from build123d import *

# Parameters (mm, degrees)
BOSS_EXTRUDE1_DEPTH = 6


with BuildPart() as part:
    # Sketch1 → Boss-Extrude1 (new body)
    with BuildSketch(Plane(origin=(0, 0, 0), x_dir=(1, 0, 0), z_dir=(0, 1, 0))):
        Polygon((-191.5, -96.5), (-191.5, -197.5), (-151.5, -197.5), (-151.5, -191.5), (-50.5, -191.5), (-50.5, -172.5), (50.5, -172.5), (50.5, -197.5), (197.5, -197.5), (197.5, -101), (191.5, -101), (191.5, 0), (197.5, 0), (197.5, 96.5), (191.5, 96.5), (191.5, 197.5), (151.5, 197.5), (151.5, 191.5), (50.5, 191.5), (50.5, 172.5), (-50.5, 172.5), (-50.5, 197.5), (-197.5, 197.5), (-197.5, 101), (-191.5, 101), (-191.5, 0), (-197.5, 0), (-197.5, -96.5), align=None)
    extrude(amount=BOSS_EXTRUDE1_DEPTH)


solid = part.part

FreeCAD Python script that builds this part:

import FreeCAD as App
import Part
import Sketcher
from FreeCAD import Vector


def add_polygon(sketch, points):
    """Adds a closed chain of lines whose ends are joined by coincident constraints."""
    first, n = sketch.GeometryCount, len(points)
    for a, b in zip(points, points[1:] + points[:1]):
        sketch.addGeometry(Part.LineSegment(App.Vector(*a, 0), App.Vector(*b, 0)), False)
    for i in range(n):
        sketch.addConstraint(Sketcher.Constraint("Coincident", first + i, 2, first + (i + 1) % n, 1))

doc = App.newDocument("Part")
body = doc.addObject("PartDesign::Body", "Body")

sketch1 = doc.addObject("Sketcher::SketchObject", "Sketch")
body.addObject(sketch1)
sketch1.AttachmentSupport = (doc.XZ_Plane, [""])
sketch1.MapMode = "FlatFace"
add_polygon(sketch1, [(-192, 96), (-192, 198), (-152, 198), (-152, 192), (-50, 192), (-50, 172), (50, 172), (50, 198), (198, 198), (198, 101), (192, 101), (192, 0), (198, 0), (198, -96), (192, -96), (192, -198), (152, -198), (152, -192), (50, -192), (50, -172), (-50, -172), (-50, -198), (-198, -198), (-198, -101), (-192, -101), (-192, 0), (-198, 0), (-198, 96)])
sketch1.addConstraint([
    Sketcher.Constraint("Vertical", 0),
    Sketcher.Constraint("Horizontal", 1),
    Sketcher.Constraint("Vertical", 2),
    Sketcher.Constraint("Horizontal", 3),
    Sketcher.Constraint("Vertical", 4),
    Sketcher.Constraint("Horizontal", 5),
    Sketcher.Constraint("Vertical", 6),
    Sketcher.Constraint("Horizontal", 7),
    Sketcher.Constraint("Vertical", 8),
    Sketcher.Constraint("Horizontal", 9),
    Sketcher.Constraint("Vertical", 10),
    Sketcher.Constraint("Horizontal", 11),
    Sketcher.Constraint("Vertical", 12),
    Sketcher.Constraint("Horizontal", 13),
    Sketcher.Constraint("Vertical", 14),
    Sketcher.Constraint("Horizontal", 15),
    Sketcher.Constraint("Vertical", 16),
    Sketcher.Constraint("Horizontal", 17),
    Sketcher.Constraint("Vertical", 18),
    Sketcher.Constraint("Horizontal", 19),
    Sketcher.Constraint("Vertical", 20),
    Sketcher.Constraint("Horizontal", 21),
    Sketcher.Constraint("Vertical", 22),
    Sketcher.Constraint("Horizontal", 23),
    Sketcher.Constraint("Vertical", 24),
    Sketcher.Constraint("Horizontal", 25),
    Sketcher.Constraint("Vertical", 26),
    Sketcher.Constraint("Horizontal", 27),
    Sketcher.Constraint("Symmetric", 0, 2, 14, 2, -1, 1),
    Sketcher.Constraint("Symmetric", 2, 2, 16, 2, -1, 1),
    Sketcher.Constraint("Symmetric", 4, 2, 18, 2, -1, 1),
    Sketcher.Constraint("Symmetric", 6, 2, 20, 2, -1, 1),
    Sketcher.Constraint("Symmetric", 8, 2, 22, 2, -1, 1),
    Sketcher.Constraint("Symmetric", 10, 2, 24, 2, -1, 1),
    Sketcher.Constraint("Symmetric", 12, 2, 26, 2, -1, 1),
    Sketcher.Constraint("PointOnObject", 10, 2, -1),
    Sketcher.Constraint("Horizontal", 1, 2, 6, 2),
    Sketcher.Constraint("Vertical", 8, 2, 11, 2),
    Sketcher.Constraint("Vertical", 10, 2, 13, 2),
    Sketcher.Constraint("Vertical", 6, 2, 17, 2),
    Sketcher.Constraint("Equal", 3, 5),
    Sketcher.Constraint("Equal", 19, 0),
    Sketcher.Constraint("Equal", 27, 2),
    Sketcher.Constraint("Equal", 0, 10),
    Sketcher.Constraint("DistanceX", 1, 1, 1, 2, 40.0),
    Sketcher.Constraint("DistanceX", 3, 1, 3, 2, 101.0),
    Sketcher.Constraint("DistanceX", 7, 1, 7, 2, 147.0),
    Sketcher.Constraint("DistanceY", 4, 2, 4, 1, 19.0),
    Sketcher.Constraint("DistanceY", 8, 2, 8, 1, 96.5),
])
pad1 = doc.addObject("PartDesign::Pad", "Pad")
body.addObject(pad1)
pad1.Profile = sketch1
pad1.Length = 6
pad1.Reversed = True

doc.recompute()
